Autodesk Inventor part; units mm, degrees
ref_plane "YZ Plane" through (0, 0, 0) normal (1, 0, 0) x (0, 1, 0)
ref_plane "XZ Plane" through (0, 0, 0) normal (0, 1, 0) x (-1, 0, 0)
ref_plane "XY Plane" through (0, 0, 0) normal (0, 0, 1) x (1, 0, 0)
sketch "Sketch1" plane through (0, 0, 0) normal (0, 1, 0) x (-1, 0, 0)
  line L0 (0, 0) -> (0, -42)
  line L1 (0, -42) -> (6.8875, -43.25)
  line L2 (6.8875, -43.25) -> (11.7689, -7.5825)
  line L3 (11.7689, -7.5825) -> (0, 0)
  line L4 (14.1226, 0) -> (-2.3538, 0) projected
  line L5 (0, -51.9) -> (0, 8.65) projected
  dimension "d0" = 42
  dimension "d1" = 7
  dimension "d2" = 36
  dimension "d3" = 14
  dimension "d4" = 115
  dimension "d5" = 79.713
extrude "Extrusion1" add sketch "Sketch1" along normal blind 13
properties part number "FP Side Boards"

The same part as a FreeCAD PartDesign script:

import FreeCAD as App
import Part
import Sketcher


def add_polygon(sketch, points):
    """Adds a closed chain of lines whose ends are joined by coincident constraints."""
    first, n = sketch.GeometryCount, len(points)
    for a, b in zip(points, points[1:] + points[:1]):
        sketch.addGeometry(Part.LineSegment(App.Vector(*a, 0), App.Vector(*b, 0)), False)
    for i in range(n):
        sketch.addConstraint(Sketcher.Constraint("Coincident", first + i, 2, first + (i + 1) % n, 1))

doc = App.newDocument("Part")
params = doc.addObject("Spreadsheet::Sheet", "Params")
for row, (alias, value) in enumerate([
    ("sketch1_height", "42 mm"),
    ("sketch1_length", "14 mm"),
    ("sketch1_length2", "7 mm"),
    ("sketch1_length3", "36 mm"),
    ("pad1_length", "13 mm"),
], start=1):
    params.set(f"A{row}", alias)
    params.set(f"B{row}", "=" + value)
    params.setAlias(f"B{row}", alias)

body = doc.addObject("PartDesign::Body", "Body")

# Sketch on XZ plane
sketch1 = doc.addObject("Sketcher::SketchObject", "Sketch")
body.addObject(sketch1)
sketch1.AttachmentSupport = (doc.XZ_Plane, [""])
sketch1.MapMode = "FlatFace"
add_polygon(sketch1, [(-12, -8), (0, 0), (0, -42), (-7, -43)])  # lines 0-3
sketch1.addConstraint(Sketcher.Constraint("Vertical", 1))
sketch1.addConstraint(Sketcher.Constraint("Coincident", 0, 2, -1, 1))
sketch1.addConstraint(Sketcher.Constraint("DistanceY", 1, 2, 1, 1, 42.0))
sketch1.addConstraint(Sketcher.Constraint("Distance", 0, 14.0))
sketch1.addConstraint(Sketcher.Constraint("Distance", 2, 7.0))
sketch1.addConstraint(Sketcher.Constraint("Distance", 3, 36.0))
sketch1.addConstraint(Sketcher.Constraint("DistanceY", 2, 2, -1, 1, 43.25))
sketch1.setExpression("Constraints[6]", "Params.sketch1_height")
sketch1.setExpression("Constraints[7]", "Params.sketch1_length")
sketch1.setExpression("Constraints[8]", "Params.sketch1_length2")
sketch1.setExpression("Constraints[9]", "Params.sketch1_length3")
pad1 = doc.addObject("PartDesign::Pad", "Pad")
body.addObject(pad1)
pad1.Profile = sketch1
pad1.setExpression("Length", "Params.pad1_length")
pad1.Reversed = True

doc.recompute()
